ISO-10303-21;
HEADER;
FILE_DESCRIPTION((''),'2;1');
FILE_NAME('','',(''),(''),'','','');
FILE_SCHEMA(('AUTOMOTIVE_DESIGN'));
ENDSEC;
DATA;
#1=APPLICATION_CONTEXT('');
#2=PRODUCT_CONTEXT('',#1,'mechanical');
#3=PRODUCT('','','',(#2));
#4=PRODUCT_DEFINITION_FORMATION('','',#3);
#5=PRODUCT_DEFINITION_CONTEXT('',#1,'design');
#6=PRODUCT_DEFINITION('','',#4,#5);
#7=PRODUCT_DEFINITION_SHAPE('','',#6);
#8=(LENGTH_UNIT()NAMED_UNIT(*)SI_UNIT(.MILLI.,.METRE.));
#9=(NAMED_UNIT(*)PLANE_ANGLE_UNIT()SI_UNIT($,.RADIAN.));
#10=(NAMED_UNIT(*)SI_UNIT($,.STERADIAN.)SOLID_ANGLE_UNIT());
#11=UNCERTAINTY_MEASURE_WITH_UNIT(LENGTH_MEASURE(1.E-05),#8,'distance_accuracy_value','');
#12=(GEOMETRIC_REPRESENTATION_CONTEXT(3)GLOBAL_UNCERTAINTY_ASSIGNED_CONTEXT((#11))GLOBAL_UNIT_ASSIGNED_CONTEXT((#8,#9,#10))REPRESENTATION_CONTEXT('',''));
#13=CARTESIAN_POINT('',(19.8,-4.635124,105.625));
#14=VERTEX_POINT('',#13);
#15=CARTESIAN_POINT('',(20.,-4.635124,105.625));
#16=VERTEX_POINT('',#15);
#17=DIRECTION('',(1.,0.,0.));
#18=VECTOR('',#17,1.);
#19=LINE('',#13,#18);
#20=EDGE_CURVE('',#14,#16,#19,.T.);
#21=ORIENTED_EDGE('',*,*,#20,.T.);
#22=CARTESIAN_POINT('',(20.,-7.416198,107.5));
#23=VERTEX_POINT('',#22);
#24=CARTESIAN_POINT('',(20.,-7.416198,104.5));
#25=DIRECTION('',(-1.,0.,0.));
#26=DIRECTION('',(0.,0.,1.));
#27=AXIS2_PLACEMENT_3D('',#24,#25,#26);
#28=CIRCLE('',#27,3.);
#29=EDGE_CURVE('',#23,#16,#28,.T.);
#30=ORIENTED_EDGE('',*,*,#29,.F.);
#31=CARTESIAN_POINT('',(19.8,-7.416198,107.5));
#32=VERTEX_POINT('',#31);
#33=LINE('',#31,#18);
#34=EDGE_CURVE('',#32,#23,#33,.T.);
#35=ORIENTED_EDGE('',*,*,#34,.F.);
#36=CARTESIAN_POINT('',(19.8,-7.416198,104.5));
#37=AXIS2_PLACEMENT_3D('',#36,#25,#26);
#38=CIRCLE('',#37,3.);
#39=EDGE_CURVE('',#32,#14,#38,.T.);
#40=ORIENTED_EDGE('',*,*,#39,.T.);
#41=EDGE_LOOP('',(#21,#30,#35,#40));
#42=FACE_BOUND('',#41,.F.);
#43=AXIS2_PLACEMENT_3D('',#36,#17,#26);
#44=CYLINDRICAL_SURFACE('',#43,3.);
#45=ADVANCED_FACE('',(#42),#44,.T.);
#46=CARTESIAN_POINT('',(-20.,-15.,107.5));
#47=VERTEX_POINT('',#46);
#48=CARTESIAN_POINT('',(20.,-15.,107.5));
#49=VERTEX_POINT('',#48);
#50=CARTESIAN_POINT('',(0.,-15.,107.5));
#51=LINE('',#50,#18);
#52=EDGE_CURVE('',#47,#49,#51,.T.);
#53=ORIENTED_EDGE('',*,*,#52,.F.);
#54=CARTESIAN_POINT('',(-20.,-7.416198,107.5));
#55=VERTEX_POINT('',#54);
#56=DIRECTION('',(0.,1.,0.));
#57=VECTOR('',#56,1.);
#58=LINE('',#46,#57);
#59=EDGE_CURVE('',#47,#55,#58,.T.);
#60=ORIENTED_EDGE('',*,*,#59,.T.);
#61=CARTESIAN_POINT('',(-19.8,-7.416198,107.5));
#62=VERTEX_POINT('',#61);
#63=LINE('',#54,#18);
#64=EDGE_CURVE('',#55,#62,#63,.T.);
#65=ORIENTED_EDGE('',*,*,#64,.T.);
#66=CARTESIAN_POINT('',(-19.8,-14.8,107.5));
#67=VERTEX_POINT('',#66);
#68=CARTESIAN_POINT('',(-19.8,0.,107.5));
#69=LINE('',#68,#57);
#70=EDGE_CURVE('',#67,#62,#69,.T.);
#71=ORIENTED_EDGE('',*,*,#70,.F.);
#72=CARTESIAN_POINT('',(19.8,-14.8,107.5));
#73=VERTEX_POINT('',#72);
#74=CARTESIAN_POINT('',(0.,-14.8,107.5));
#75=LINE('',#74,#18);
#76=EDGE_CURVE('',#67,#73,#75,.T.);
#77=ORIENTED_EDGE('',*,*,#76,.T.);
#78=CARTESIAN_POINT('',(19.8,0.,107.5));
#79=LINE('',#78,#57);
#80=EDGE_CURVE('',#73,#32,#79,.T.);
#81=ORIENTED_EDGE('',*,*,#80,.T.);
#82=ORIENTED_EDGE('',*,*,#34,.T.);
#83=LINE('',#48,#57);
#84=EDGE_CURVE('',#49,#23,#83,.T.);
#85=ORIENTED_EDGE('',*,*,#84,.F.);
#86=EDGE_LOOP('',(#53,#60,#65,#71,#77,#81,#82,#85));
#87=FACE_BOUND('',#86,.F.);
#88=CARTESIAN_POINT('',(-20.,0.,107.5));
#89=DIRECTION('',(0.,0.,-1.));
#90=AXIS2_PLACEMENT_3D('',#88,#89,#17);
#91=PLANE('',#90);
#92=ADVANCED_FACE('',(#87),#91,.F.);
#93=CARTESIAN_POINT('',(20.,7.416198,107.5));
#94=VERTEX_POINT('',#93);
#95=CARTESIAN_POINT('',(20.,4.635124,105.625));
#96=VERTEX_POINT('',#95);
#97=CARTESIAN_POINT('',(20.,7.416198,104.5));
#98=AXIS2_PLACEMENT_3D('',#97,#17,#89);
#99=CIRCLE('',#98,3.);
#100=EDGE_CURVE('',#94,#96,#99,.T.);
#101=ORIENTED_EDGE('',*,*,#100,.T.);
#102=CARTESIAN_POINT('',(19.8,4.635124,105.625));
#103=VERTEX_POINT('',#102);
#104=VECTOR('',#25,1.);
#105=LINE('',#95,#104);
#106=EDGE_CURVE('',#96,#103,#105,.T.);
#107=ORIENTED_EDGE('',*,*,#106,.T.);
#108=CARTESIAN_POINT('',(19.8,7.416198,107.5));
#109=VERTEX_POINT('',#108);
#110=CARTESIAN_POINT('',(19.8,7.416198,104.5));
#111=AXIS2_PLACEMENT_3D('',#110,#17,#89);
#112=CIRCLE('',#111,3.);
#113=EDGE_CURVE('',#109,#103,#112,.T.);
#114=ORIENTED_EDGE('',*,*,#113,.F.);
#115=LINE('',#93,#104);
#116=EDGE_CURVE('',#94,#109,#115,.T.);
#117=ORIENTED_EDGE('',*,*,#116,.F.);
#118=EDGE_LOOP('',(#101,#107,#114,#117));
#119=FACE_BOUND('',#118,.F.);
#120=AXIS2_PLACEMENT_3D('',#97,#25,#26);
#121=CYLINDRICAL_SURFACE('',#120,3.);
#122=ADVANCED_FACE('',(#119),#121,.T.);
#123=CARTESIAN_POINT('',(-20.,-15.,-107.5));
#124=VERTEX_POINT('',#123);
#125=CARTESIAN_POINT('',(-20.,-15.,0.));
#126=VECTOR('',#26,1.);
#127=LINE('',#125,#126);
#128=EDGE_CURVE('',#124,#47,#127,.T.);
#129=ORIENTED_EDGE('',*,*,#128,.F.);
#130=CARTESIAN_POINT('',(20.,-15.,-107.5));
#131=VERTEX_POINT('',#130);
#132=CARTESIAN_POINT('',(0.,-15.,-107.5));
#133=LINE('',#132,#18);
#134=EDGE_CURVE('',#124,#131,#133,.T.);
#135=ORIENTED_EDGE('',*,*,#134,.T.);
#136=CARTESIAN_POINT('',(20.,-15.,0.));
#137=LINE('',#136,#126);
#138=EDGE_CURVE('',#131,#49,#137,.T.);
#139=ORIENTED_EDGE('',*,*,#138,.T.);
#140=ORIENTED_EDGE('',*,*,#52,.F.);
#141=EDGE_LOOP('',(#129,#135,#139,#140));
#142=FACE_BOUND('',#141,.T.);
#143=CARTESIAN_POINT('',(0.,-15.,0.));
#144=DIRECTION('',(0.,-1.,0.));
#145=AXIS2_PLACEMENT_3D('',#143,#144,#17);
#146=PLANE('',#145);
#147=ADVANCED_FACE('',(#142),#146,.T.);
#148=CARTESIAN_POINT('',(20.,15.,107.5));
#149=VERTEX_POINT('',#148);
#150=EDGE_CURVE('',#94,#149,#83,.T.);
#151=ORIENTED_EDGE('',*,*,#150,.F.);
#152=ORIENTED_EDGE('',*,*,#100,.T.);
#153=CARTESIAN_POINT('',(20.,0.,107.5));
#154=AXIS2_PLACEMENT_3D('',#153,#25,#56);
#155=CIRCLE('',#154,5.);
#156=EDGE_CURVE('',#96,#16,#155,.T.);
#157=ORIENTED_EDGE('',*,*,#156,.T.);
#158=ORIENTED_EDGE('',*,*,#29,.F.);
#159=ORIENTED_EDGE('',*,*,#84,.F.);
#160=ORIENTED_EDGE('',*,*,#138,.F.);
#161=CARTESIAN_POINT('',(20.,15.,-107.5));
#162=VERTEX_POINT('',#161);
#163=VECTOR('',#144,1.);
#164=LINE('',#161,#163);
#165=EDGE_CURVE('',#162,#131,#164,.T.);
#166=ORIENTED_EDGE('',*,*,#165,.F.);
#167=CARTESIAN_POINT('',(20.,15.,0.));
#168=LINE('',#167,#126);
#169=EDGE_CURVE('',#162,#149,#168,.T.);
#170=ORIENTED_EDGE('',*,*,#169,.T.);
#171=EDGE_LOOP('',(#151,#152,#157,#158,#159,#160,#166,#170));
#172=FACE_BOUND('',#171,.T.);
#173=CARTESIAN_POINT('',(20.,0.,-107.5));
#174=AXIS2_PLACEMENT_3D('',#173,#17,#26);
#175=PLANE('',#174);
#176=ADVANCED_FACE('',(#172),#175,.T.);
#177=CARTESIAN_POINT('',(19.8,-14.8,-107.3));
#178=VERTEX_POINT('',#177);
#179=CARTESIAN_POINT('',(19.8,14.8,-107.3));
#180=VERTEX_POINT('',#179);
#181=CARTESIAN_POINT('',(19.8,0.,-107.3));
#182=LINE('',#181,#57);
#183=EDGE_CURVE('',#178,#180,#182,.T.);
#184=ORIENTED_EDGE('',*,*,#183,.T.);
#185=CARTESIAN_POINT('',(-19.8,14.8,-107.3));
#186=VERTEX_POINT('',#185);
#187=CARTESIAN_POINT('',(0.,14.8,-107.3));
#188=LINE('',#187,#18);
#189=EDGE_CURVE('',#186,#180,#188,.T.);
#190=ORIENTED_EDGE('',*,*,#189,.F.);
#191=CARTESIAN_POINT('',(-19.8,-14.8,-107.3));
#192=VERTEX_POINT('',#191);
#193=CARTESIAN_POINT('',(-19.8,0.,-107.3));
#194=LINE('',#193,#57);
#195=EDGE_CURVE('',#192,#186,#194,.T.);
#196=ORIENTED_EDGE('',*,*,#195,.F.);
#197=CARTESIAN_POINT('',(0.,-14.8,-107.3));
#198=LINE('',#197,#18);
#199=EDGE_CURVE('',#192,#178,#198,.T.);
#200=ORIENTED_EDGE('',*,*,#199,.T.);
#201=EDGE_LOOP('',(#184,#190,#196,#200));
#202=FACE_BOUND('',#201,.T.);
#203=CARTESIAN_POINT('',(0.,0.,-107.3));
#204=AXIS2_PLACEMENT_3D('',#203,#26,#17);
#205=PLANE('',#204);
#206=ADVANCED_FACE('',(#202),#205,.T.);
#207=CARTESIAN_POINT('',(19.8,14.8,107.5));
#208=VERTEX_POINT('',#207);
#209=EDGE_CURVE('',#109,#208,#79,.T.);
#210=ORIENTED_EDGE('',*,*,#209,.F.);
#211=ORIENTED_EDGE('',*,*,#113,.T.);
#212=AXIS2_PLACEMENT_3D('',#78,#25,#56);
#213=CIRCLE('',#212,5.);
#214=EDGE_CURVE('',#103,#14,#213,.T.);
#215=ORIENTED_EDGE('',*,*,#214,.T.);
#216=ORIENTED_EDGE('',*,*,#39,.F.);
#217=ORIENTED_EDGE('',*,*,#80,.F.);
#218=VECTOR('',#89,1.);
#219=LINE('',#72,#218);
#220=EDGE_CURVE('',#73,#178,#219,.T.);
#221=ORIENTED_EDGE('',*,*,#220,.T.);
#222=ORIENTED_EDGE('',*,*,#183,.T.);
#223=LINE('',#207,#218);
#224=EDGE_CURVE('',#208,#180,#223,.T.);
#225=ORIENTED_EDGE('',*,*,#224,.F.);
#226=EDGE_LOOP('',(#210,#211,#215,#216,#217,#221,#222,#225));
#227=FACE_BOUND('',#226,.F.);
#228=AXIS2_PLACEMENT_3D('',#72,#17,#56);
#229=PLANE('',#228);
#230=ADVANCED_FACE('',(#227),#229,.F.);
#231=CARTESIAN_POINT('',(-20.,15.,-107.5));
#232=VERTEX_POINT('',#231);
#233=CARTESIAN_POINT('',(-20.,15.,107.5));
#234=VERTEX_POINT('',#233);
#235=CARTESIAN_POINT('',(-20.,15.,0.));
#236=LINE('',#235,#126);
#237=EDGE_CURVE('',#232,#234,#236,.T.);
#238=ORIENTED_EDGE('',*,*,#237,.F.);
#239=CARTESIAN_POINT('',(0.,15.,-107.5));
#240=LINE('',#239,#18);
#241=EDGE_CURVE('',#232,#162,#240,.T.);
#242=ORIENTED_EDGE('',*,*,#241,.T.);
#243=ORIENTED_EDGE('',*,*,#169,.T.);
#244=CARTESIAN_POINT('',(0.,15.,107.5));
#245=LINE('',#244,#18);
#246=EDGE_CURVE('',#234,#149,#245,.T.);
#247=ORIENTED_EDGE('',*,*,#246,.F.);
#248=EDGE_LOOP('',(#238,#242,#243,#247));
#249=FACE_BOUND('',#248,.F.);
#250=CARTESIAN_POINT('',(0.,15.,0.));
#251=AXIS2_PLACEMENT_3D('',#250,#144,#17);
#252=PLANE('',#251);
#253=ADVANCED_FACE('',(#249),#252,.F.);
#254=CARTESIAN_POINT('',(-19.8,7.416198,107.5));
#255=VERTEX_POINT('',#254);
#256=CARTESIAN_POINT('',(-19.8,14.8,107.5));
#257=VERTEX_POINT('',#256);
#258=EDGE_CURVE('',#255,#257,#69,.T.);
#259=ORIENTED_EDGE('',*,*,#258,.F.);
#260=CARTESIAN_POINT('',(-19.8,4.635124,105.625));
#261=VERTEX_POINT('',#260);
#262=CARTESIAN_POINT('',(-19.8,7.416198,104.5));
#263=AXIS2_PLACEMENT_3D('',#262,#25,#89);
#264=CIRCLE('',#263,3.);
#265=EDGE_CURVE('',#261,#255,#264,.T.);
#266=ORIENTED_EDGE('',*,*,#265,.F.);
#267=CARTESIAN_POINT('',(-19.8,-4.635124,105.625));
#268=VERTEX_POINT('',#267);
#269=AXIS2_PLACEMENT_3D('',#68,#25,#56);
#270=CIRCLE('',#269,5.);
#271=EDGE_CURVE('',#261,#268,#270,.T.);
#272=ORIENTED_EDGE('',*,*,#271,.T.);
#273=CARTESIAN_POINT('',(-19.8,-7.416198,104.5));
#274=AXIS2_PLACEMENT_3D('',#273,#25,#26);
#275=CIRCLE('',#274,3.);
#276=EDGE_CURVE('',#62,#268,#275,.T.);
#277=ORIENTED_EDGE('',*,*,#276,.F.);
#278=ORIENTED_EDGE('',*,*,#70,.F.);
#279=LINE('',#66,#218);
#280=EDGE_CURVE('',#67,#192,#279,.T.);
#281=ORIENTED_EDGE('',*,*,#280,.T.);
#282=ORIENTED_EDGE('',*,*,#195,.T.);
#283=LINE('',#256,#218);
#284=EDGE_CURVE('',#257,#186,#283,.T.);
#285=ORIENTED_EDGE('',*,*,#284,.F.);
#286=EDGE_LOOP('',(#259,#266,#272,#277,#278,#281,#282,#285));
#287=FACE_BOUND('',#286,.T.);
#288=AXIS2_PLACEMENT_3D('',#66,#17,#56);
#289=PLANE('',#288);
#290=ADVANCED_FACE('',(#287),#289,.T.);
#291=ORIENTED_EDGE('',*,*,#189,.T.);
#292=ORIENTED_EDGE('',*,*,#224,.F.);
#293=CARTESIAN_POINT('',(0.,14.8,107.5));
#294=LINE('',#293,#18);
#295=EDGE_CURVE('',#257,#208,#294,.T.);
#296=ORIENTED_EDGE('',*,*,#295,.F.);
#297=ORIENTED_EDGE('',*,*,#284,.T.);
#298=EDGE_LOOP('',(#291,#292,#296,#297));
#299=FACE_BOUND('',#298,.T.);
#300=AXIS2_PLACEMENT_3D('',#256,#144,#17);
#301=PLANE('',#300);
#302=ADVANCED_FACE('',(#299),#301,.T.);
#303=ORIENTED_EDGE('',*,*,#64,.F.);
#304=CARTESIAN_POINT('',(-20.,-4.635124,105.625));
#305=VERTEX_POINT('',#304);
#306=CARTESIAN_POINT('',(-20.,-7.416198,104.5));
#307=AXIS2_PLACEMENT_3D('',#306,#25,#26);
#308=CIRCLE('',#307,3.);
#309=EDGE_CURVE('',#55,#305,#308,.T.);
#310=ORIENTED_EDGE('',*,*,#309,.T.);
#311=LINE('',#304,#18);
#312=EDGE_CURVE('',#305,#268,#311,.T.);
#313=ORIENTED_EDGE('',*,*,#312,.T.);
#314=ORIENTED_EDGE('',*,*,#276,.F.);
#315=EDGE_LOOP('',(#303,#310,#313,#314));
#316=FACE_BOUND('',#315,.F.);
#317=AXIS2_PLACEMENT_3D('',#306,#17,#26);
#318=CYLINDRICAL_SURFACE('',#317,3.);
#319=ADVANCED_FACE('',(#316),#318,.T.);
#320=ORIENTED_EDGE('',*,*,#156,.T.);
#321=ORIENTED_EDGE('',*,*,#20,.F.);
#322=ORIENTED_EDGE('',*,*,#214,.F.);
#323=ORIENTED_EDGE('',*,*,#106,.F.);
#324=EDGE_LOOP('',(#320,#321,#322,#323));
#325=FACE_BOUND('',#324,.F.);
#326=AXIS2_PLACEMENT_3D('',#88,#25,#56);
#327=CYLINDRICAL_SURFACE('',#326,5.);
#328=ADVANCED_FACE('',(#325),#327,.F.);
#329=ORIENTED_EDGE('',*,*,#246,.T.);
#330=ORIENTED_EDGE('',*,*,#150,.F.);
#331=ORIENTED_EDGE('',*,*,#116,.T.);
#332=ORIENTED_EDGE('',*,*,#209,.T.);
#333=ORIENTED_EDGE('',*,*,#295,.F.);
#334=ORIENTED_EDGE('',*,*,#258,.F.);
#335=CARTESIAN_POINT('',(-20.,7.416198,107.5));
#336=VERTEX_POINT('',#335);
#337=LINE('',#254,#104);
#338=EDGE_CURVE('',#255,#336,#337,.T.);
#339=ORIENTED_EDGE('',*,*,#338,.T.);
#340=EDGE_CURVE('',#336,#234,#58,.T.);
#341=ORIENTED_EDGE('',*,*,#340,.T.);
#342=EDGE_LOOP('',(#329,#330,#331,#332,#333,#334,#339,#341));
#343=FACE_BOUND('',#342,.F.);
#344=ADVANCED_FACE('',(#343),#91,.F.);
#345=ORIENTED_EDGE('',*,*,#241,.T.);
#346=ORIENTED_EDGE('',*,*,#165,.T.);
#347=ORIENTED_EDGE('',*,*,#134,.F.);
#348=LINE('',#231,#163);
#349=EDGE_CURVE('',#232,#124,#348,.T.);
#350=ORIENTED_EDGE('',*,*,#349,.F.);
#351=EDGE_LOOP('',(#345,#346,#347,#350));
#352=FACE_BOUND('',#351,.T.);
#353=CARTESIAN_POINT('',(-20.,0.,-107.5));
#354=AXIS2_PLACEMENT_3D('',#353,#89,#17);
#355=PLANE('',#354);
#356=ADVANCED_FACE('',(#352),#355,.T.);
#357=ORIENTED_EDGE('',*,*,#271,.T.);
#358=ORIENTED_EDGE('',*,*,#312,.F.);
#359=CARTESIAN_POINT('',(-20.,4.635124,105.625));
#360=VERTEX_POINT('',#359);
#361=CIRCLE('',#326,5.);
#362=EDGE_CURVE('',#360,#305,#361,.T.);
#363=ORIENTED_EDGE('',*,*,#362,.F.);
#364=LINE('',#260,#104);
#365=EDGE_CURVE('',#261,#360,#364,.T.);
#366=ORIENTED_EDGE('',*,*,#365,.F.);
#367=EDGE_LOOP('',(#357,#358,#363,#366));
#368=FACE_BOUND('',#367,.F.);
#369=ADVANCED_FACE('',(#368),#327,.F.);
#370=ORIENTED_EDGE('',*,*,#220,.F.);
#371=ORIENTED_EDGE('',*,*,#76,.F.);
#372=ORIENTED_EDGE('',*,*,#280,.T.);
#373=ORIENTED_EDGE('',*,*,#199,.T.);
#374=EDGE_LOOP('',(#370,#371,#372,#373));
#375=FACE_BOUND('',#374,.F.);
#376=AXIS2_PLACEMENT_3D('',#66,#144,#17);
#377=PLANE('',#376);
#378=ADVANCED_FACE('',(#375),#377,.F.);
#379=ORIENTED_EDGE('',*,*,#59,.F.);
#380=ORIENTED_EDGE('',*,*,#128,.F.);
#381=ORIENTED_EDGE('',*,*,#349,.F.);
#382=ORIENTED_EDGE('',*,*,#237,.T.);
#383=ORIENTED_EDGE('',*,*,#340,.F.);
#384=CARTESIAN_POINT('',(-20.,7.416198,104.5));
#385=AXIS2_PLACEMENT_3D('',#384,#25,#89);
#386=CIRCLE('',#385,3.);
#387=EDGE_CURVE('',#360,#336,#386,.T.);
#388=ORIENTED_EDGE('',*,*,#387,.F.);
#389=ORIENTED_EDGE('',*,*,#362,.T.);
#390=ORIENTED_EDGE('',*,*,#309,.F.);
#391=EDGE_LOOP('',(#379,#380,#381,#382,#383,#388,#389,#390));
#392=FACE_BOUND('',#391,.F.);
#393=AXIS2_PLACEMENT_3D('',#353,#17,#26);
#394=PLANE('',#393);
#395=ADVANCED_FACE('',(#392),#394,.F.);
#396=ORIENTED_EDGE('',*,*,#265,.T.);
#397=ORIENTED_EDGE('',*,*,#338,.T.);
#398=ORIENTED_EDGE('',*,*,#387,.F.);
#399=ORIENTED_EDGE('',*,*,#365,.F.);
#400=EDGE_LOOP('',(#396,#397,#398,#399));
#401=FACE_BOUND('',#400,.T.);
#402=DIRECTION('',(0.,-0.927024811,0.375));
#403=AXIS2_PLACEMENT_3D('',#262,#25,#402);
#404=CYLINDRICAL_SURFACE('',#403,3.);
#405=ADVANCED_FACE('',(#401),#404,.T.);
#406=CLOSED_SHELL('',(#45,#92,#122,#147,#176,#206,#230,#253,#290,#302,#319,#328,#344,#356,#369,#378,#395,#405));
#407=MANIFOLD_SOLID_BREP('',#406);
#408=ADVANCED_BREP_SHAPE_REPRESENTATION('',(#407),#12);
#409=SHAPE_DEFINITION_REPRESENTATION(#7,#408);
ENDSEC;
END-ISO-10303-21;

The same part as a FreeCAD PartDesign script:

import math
import FreeCAD as App
import Part
import Sketcher
Q = App.Units.Quantity


def edges_at(feature, points):
    """Names of the edges that pass closest to the given points."""
    edges = feature.Shape.Edges
    near = lambda p: min(range(len(edges)), key=lambda i: edges[i].distToShape(Part.Vertex(*p))[0])
    return sorted({f"Edge{near(p) + 1}" for p in points})


def add_polygon(sketch, points):
    """Adds a closed chain of lines whose ends are joined by coincident constraints."""
    first, n = sketch.GeometryCount, len(points)
    for a, b in zip(points, points[1:] + points[:1]):
        sketch.addGeometry(Part.LineSegment(App.Vector(*a, 0), App.Vector(*b, 0)), False)
    for i in range(n):
        sketch.addConstraint(Sketcher.Constraint("Coincident", first + i, 2, first + (i + 1) % n, 1))

doc = App.newDocument("Part")
params = doc.addObject("Spreadsheet::Sheet", "Params")
for row, (alias, value) in enumerate([
    ("sketch1_width", "40 mm"),
    ("sketch1_height", "215 mm"),
    ("pad1_length", "30 mm"),
    ("sketch2_width", "39.6 mm"),
    ("sketch2_height", "29.6 mm"),
    ("pocket1_length", "214.8 mm"),
    ("sketch3_radius", "5 mm"),
    ("pocket2_length", "124.8 mm"),
    ("fillet_radius", "3 mm"),
], start=1):
    params.set(f"A{row}", alias)
    params.set(f"B{row}", "=" + value)
    params.setAlias(f"B{row}", alias)

body = doc.addObject("PartDesign::Body", "Body")

sketch1 = body.newObject("Sketcher::SketchObject", "Sketch")
sketch1.AttachmentSupport = (doc.getObject("XZ_Plane"), [""])
sketch1.MapMode = "FlatFace"
add_polygon(sketch1, [(-20, 107.5), (-20, -107.5), (20, -107.5), (20, 107.5)])
sketch1.addConstraint(Sketcher.Constraint("Vertical", 0))
sketch1.addConstraint(Sketcher.Constraint("Horizontal", 1))
sketch1.addConstraint(Sketcher.Constraint("Vertical", 2))
sketch1.addConstraint(Sketcher.Constraint("Horizontal", 3))
sketch1.addConstraint(Sketcher.Constraint("Symmetric", 0, 2, 2, 2, -1, 1))
sketch1.addConstraint(Sketcher.Constraint("DistanceX", 1, 1, 1, 2, Q("40 mm")))
sketch1.addConstraint(Sketcher.Constraint("DistanceY", 0, 2, 0, 1, Q("215 mm")))
sketch1.setExpression("Constraints[9]", "Params.sketch1_width")
sketch1.setExpression("Constraints[10]", "Params.sketch1_height")
pad1 = body.newObject("PartDesign::Pad", "Pad")
pad1.Profile = sketch1
pad1.setExpression("Length", "Params.pad1_length")
pad1.Midplane = True

sketch2 = body.newObject("Sketcher::SketchObject", "Sketch001")
sketch2.AttachmentSupport = (doc.getObject("XY_Plane"), [""])
sketch2.MapMode = "FlatFace"
sketch2.AttachmentOffset = App.Placement(App.Vector(0, 0, 107.5), App.Rotation())
add_polygon(sketch2, [(-19.8, 14.8), (-19.8, -14.8), (19.8, -14.8), (19.8, 14.8)])
sketch2.addConstraint(Sketcher.Constraint("Vertical", 0))
sketch2.addConstraint(Sketcher.Constraint("Horizontal", 1))
sketch2.addConstraint(Sketcher.Constraint("Vertical", 2))
sketch2.addConstraint(Sketcher.Constraint("Horizontal", 3))
sketch2.addConstraint(Sketcher.Constraint("Symmetric", 0, 2, 2, 2, -1, 1))
sketch2.addConstraint(Sketcher.Constraint("DistanceX", 1, 1, 1, 2, Q("39.6 mm")))
sketch2.addConstraint(Sketcher.Constraint("DistanceY", 0, 2, 0, 1, Q("29.6 mm")))
sketch2.setExpression("Constraints[9]", "Params.sketch2_width")
sketch2.setExpression("Constraints[10]", "Params.sketch2_height")
pocket1 = body.newObject("PartDesign::Pocket", "Pocket")
pocket1.Profile = sketch2
pocket1.setExpression("Length", "Params.pocket1_length")

sketch3 = body.newObject("Sketcher::SketchObject", "Sketch002")
sketch3.AttachmentSupport = (doc.getObject("YZ_Plane"), [""])
sketch3.MapMode = "FlatFace"
sketch3.AttachmentOffset = App.Placement(App.Vector(0, 0, -20), App.Rotation())
sketch3.addGeometry(Part.LineSegment(App.Vector(-5, 107.5, 0), App.Vector(5, 107.5, 0)), False)
sketch3.addGeometry(Part.ArcOfCircle(Part.Circle(App.Vector(0, 107.5, 0), App.Vector(0, 0, 1), 5), math.radians(180), math.radians(360)), False)
sketch3.addConstraint(Sketcher.Constraint("Coincident", 0, 1, 1, 1))
sketch3.addConstraint(Sketcher.Constraint("Coincident", 1, 2, 0, 2))
sketch3.addConstraint(Sketcher.Constraint("Horizontal", 0))
sketch3.addConstraint(Sketcher.Constraint("PointOnObject", 1, 3, -2))
sketch3.addConstraint(Sketcher.Constraint("Horizontal", 1, 3, 0, 1))
sketch3.addConstraint(Sketcher.Constraint("Radius", 1, Q("5 mm")))
sketch3.addConstraint(Sketcher.Constraint("DistanceY", -1, 1, 1, 3, Q("107.5 mm")))
sketch3.setExpression("Constraints[5]", "Params.sketch3_radius")
pocket2 = body.newObject("PartDesign::Pocket", "Pocket001")
pocket2.Profile = sketch3
pocket2.setExpression("Length", "Params.pocket2_length")
pocket2.Midplane = True
doc.recompute()

fillet = body.newObject("PartDesign::Fillet", "Fillet")
fillet.Base = (pocket2, edges_at(pocket2, [
    (19.9, -5, 107.5),
    (-19.9, -5, 107.5),
    (19.9, 5, 107.5),
    (-19.9, 5, 107.5),
]))
fillet.setExpression("Radius", "Params.fillet_radius")

doc.recompute()
